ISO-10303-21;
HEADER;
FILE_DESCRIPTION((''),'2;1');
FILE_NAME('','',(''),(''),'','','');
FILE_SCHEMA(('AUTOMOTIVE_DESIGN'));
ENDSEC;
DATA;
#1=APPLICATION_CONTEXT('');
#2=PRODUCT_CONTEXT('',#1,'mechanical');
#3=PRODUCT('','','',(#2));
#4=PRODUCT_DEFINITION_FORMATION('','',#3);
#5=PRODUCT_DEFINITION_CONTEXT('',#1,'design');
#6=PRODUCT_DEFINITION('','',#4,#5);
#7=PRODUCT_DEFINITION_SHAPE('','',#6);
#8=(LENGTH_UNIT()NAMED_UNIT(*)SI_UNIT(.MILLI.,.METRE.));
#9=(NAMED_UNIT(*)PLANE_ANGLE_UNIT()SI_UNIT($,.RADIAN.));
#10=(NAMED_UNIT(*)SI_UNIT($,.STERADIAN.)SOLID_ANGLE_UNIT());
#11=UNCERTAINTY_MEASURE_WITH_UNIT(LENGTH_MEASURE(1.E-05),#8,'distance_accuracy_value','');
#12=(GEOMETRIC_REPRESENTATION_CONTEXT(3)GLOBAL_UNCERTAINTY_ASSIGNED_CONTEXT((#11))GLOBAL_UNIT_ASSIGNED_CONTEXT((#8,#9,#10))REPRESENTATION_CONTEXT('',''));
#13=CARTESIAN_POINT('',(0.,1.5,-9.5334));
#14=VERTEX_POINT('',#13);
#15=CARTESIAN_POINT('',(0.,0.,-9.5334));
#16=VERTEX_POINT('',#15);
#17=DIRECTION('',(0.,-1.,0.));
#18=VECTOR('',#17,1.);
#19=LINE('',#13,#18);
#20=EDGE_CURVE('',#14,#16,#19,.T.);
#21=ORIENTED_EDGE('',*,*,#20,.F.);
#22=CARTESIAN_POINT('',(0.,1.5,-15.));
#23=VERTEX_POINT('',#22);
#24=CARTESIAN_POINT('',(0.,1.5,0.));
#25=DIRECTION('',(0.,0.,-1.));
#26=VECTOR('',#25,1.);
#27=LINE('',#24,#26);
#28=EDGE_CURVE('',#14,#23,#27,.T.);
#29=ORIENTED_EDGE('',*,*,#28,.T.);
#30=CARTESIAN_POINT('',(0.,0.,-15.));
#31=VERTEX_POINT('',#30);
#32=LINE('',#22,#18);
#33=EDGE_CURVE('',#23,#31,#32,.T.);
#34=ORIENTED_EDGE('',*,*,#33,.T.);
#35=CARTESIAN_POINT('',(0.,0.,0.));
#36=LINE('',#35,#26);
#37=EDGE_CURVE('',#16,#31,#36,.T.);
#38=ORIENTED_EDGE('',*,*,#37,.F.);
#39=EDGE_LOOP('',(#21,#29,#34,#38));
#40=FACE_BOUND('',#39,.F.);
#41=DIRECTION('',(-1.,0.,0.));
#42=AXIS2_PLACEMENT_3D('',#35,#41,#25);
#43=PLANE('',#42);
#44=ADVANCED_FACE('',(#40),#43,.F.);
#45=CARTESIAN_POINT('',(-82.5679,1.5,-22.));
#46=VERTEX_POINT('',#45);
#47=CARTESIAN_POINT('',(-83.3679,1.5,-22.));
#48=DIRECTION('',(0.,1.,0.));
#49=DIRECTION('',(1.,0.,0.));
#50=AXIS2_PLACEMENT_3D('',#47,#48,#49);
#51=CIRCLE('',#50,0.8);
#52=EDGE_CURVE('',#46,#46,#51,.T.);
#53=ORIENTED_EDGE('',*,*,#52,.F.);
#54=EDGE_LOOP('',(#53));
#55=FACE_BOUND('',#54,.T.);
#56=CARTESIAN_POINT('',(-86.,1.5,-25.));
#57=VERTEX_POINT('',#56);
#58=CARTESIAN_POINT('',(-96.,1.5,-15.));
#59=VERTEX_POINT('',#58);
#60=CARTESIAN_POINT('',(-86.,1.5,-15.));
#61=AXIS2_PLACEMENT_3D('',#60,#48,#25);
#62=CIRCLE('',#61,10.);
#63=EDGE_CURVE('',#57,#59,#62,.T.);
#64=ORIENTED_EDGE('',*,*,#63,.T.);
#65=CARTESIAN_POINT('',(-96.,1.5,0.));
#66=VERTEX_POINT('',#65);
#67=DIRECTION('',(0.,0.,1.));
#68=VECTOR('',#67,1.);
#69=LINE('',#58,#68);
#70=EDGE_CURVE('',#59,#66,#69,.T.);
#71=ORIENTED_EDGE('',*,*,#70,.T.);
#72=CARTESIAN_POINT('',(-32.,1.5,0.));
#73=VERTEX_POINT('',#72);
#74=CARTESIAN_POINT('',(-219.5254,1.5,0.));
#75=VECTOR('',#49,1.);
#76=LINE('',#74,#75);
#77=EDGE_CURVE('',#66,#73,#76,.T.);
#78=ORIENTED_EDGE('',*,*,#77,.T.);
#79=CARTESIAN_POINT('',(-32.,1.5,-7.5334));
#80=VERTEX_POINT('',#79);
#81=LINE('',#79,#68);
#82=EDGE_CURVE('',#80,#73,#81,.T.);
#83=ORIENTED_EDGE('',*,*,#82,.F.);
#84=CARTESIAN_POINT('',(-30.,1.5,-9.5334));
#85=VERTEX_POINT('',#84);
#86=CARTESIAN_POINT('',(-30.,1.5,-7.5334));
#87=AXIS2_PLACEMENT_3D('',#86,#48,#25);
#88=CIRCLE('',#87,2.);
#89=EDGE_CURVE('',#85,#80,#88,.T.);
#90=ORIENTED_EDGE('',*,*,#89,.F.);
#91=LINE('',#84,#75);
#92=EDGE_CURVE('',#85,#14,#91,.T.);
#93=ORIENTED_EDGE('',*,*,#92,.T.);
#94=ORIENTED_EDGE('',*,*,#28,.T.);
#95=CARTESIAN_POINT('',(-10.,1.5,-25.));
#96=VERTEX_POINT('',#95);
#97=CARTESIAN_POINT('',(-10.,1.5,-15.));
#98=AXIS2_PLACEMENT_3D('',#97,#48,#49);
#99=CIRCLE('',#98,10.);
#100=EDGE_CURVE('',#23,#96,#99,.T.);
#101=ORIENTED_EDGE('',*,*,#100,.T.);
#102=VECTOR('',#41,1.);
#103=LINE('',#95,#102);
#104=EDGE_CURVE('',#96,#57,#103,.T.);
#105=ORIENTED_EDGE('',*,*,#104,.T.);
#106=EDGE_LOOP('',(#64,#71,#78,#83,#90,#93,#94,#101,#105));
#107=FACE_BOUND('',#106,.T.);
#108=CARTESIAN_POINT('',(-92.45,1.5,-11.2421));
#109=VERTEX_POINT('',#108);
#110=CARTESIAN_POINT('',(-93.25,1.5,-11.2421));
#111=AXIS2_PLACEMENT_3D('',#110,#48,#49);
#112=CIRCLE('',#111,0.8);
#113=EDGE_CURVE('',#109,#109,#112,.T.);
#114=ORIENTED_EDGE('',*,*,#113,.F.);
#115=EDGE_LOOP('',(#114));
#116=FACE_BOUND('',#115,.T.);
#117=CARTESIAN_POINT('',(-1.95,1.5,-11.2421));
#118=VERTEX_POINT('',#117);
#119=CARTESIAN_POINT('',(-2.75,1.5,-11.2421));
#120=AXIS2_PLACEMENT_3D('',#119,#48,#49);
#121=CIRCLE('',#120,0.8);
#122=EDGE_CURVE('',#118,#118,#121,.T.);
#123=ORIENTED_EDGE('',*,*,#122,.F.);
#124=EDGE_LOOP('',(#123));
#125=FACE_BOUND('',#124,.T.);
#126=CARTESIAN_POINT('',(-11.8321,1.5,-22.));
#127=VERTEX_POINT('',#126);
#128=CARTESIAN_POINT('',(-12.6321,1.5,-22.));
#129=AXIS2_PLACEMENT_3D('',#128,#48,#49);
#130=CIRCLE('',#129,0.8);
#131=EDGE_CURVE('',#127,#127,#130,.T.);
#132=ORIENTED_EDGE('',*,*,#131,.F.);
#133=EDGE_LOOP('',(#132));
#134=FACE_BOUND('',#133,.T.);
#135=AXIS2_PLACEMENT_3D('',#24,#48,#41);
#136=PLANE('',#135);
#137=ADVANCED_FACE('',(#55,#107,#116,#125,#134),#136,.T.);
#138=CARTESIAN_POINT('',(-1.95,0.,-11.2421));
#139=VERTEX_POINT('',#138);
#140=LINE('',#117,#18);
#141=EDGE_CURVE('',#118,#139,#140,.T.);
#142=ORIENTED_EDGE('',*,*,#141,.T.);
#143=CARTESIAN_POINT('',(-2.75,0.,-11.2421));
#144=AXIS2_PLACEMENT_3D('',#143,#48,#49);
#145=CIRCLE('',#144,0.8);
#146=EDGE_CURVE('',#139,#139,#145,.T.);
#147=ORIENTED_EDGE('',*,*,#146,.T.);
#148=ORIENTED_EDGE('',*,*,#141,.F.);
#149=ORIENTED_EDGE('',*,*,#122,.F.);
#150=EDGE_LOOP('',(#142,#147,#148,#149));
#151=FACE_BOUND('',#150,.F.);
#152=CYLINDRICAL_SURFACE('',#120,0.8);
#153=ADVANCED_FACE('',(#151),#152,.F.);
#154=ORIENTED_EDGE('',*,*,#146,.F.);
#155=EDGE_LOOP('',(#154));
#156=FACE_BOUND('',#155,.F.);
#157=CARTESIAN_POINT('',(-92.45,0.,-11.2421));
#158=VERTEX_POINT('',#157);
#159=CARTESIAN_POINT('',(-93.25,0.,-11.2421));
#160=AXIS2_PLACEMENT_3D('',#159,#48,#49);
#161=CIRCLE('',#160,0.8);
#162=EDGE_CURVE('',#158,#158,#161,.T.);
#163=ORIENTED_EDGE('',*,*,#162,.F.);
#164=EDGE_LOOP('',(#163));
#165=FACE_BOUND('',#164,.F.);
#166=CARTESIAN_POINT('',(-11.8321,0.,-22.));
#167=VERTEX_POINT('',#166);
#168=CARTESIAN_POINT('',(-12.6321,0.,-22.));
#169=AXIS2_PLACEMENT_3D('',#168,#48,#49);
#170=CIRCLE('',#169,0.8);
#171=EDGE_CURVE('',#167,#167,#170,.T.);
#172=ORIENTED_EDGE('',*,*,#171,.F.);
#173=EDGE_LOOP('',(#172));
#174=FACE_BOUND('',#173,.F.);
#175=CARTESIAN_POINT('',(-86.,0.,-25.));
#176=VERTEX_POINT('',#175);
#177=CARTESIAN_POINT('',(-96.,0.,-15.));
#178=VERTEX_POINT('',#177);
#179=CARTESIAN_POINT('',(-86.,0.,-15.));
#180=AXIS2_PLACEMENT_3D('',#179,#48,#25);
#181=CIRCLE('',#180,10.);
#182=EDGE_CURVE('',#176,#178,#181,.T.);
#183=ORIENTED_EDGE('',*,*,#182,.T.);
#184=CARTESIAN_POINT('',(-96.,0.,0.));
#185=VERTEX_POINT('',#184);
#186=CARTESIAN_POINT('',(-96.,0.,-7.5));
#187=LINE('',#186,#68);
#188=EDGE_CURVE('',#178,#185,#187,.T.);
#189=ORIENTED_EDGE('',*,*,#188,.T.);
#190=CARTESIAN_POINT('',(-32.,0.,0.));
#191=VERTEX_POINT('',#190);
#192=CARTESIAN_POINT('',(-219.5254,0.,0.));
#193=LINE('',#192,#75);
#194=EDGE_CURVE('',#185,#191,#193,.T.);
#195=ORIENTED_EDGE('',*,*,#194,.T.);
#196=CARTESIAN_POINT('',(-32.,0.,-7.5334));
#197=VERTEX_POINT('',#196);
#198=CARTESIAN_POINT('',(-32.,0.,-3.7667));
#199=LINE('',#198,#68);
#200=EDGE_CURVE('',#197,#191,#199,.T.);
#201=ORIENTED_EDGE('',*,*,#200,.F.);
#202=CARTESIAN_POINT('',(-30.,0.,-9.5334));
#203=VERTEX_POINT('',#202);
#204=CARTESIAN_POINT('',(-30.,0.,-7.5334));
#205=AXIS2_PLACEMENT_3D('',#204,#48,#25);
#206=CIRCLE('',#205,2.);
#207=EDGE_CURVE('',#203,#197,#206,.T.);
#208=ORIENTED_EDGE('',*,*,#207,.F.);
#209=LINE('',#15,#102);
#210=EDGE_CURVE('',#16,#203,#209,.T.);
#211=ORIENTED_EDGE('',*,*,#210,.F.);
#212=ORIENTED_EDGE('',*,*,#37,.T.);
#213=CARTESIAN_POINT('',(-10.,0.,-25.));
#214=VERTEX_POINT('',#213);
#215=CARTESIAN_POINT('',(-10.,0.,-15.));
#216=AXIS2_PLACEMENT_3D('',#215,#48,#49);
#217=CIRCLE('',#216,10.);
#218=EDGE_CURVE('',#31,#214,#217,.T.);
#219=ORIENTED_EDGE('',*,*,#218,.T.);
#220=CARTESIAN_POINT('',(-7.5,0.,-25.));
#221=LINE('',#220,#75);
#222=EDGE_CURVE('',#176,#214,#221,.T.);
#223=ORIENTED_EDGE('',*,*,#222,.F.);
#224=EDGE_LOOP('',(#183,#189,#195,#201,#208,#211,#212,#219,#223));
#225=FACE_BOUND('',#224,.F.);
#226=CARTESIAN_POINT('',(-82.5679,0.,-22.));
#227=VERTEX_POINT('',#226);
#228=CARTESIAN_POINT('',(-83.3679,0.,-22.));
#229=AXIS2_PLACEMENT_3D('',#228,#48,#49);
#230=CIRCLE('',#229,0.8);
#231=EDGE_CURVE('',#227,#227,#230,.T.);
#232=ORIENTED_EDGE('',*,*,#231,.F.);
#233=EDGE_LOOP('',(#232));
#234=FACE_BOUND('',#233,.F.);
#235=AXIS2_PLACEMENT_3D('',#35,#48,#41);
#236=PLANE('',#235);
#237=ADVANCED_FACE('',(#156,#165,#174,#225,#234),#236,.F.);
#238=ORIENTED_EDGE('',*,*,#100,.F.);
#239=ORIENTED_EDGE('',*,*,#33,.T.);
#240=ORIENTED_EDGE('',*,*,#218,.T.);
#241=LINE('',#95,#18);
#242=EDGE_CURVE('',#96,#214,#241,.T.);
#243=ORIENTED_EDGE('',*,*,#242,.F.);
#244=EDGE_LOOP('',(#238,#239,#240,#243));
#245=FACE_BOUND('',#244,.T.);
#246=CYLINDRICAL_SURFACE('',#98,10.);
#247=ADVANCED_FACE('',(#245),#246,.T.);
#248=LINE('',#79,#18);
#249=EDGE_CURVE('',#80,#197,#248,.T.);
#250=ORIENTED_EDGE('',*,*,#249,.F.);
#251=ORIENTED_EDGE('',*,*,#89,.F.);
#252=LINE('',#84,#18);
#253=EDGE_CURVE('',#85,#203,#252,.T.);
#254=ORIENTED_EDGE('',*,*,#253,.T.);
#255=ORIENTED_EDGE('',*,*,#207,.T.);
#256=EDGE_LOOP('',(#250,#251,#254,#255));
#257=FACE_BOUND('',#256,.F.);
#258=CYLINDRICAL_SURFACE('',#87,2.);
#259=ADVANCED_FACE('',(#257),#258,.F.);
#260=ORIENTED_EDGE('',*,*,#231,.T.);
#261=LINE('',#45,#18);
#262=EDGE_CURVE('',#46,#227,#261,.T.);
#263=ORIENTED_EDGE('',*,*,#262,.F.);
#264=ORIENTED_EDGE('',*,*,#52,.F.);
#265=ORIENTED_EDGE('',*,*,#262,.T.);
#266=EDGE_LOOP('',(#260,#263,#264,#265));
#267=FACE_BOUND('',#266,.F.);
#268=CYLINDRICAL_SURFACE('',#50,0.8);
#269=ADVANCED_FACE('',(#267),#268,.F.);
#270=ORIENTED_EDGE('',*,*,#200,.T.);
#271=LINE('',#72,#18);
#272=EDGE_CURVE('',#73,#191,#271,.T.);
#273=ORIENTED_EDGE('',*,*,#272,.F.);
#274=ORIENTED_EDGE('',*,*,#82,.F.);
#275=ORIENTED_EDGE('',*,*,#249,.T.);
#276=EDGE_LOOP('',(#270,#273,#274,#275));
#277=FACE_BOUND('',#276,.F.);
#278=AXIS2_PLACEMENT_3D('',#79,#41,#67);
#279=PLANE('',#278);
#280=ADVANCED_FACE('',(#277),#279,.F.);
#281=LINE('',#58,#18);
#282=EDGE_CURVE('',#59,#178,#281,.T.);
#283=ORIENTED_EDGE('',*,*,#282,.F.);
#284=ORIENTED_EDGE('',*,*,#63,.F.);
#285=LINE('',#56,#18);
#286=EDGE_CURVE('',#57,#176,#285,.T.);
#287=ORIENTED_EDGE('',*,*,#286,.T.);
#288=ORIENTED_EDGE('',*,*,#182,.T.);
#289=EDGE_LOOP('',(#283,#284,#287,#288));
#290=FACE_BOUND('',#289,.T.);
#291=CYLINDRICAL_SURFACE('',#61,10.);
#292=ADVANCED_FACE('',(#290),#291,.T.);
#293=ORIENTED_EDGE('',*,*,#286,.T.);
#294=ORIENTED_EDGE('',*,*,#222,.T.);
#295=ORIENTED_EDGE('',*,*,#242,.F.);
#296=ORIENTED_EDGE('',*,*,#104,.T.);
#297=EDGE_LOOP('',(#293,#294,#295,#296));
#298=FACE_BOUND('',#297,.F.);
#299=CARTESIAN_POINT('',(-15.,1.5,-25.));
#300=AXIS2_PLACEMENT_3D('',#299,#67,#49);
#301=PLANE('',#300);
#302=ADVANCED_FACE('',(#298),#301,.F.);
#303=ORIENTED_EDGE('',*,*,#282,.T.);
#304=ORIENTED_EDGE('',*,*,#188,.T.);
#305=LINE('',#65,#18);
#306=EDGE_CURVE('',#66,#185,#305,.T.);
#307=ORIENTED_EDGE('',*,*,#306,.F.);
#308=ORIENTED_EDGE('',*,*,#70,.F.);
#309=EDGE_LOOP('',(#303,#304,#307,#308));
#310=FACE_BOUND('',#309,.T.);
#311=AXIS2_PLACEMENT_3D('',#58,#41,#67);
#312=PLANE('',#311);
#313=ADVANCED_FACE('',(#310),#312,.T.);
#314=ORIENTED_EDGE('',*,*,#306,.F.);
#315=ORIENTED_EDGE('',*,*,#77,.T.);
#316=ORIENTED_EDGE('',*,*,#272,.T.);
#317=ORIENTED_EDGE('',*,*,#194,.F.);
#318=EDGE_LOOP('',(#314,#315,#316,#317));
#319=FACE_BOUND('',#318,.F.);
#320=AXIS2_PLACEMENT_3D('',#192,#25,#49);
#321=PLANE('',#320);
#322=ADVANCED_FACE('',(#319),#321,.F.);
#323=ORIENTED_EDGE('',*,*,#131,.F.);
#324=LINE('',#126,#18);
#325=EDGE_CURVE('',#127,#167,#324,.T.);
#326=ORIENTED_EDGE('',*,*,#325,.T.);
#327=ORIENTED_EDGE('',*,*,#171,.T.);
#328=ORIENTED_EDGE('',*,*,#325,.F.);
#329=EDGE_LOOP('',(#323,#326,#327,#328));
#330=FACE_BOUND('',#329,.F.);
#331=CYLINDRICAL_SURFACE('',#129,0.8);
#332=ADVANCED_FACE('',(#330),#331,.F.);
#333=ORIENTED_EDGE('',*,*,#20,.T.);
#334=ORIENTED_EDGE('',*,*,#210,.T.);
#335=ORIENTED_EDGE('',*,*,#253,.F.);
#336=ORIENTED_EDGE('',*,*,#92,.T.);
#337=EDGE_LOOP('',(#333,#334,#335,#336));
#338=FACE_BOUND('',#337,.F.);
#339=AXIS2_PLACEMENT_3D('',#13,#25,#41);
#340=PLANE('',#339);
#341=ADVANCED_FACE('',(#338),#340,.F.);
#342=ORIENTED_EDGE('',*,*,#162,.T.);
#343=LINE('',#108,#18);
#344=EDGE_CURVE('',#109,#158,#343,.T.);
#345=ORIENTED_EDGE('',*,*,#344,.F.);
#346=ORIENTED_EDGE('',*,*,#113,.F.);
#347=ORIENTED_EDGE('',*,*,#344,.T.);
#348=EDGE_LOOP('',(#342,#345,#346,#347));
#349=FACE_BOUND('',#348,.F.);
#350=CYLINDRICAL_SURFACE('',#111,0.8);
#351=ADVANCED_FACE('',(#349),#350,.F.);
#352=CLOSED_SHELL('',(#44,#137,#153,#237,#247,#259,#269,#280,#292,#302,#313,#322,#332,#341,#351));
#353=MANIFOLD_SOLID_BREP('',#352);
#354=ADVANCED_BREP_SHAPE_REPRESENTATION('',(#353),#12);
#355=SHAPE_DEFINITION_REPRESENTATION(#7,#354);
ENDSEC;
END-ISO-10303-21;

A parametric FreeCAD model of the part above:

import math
import FreeCAD as App
import Part
import Sketcher

V = App.Vector
Q = App.Units.Quantity

doc = App.newDocument("Part")
body = doc.addObject("PartDesign::Body", "Body")

# Sketch on XZ plane
sketch1 = body.newObject("Sketcher::SketchObject", "Sketch")
sketch1.AttachmentSupport = (doc.getObject("XZ_Plane"), [""])
sketch1.MapMode = "FlatFace"
sketch1.addGeometry([
    Part.LineSegment(V(-219.5254, -189.1417, 0), V(-219.5254, 0, 0)),
    Part.LineSegment(V(-219.5254, 0, 0), V(0, 0, 0)),
    Part.LineSegment(V(0, 0, 0), V(0, -189.1417, 0)),
    Part.LineSegment(V(0, -189.1417, 0), V(-219.5254, -189.1417, 0)),
], False)
sketch1.addConstraint([
    Sketcher.Constraint("Coincident", 0, 2, 1, 1),
    Sketcher.Constraint("Coincident", 1, 2, 2, 1),
    Sketcher.Constraint("Coincident", 2, 2, 3, 1),
    Sketcher.Constraint("Coincident", 3, 2, 0, 1),
    Sketcher.Constraint("Vertical", 0),
    Sketcher.Constraint("Horizontal", 1),
    Sketcher.Constraint("Vertical", 2),
    Sketcher.Constraint("Horizontal", 3),
    Sketcher.Constraint("Coincident", 1, 2, -1, 1),
    Sketcher.Constraint("DistanceX", 1, 1, 1, 2, Q("219.5254 mm")),
    Sketcher.Constraint("DistanceY", 0, 1, 0, 2, Q("189.1417 mm")),
])
pad1 = body.newObject("PartDesign::Pad", "Pad")
pad1.Profile = sketch1
pad1.Length = 1.5
pad1.Reversed = True

# Sketch on XZ plane
sketch2 = body.newObject("Sketcher::SketchObject", "Sketch001")
sketch2.AttachmentSupport = (doc.getObject("XZ_Plane"), [""])
sketch2.MapMode = "FlatFace"
sketch2.AttachmentOffset = App.Placement(V(0, 0, -1.5), App.Rotation())
sketch2.addGeometry([
    Part.LineSegment(V(0, -9.5334, 0), V(-30, -9.5334, 0)),  # 0
    Part.ArcOfCircle(Part.Circle(V(-30, -7.5334, 0), V(0, 0, 1), 2), math.radians(180), math.radians(270)),  # 1
    Part.LineSegment(V(-32, -7.5334, 0), V(-32, 0, 0)),  # 2
    Part.LineSegment(V(-32, 0, 0), V(0, 0, 0)),  # 3
    Part.LineSegment(V(0, 0, 0), V(0, -9.5334, 0)),  # 4
    Part.ArcOfCircle(Part.Circle(V(-10, -15, 0), V(0, 0, 1), 10), math.radians(-90), math.radians(0)),  # 5
    Part.LineSegment(V(0, -15, 0), V(0, -189.1417, 0)),  # 6
    Part.LineSegment(V(0, -189.1417, 0), V(-219.5254, -189.1417, 0)),  # 7
    Part.LineSegment(V(-219.5254, -189.1417, 0), V(-219.5254, 0, 0)),  # 8
    Part.LineSegment(V(-219.5254, 0, 0), V(-96, 0, 0)),  # 9
    Part.LineSegment(V(-96, 0, 0), V(-96, -15, 0)),  # 10
    Part.ArcOfCircle(Part.Circle(V(-86, -15, 0), V(0, 0, 1), 10), math.radians(180), math.radians(270)),  # 11
    Part.LineSegment(V(-86, -25, 0), V(-10, -25, 0)),  # 12
    Part.Circle(V(-12.6321, -22, 0), V(0, 0, 1), 0.8),  # 13
    Part.Circle(V(-83.3679, -22, 0), V(0, 0, 1), 0.8),  # 14
    Part.Circle(V(-93.25, -11.2421, 0), V(0, 0, 1), 0.8),  # 15
    Part.Circle(V(-2.75, -11.2421, 0), V(0, 0, 1), 0.8),  # 16
], False)
sketch2.addConstraint([
    Sketcher.Constraint("Tangent", 0, 2, 1, 2),
    Sketcher.Constraint("Tangent", 1, 1, 2, 1),
    Sketcher.Constraint("Coincident", 2, 2, 3, 1),
    Sketcher.Constraint("Coincident", 3, 2, 4, 1),
    Sketcher.Constraint("Coincident", 4, 2, 0, 1),
    Sketcher.Constraint("Tangent", 5, 2, 6, 1),
    Sketcher.Constraint("Coincident", 6, 2, 7, 1),
    Sketcher.Constraint("Coincident", 7, 2, 8, 1),
    Sketcher.Constraint("Coincident", 8, 2, 9, 1),
    Sketcher.Constraint("Coincident", 9, 2, 10, 1),
    Sketcher.Constraint("Tangent", 10, 2, 11, 1),
    Sketcher.Constraint("Tangent", 11, 2, 12, 1),
    Sketcher.Constraint("Tangent", 12, 2, 5, 1),
    Sketcher.Constraint("Horizontal", 0),
    Sketcher.Constraint("Vertical", 2),
    Sketcher.Constraint("Horizontal", 3),
    Sketcher.Constraint("Vertical", 4),
    Sketcher.Constraint("Vertical", 6),
    Sketcher.Constraint("Horizontal", 7),
    Sketcher.Constraint("Vertical", 8),
    Sketcher.Constraint("Horizontal", 9),
    Sketcher.Constraint("Vertical", 10),
    Sketcher.Constraint("Horizontal", 12),
    Sketcher.Constraint("Coincident", 3, 2, -1, 1),
    Sketcher.Constraint("Equal", 5, 11),
    Sketcher.Constraint("Equal", 13, 14),
    Sketcher.Constraint("Equal", 14, 15),
    Sketcher.Constraint("Equal", 15, 16),
    Sketcher.Constraint("PointOnObject", 5, 2, -2),
    Sketcher.Constraint("PointOnObject", 8, 2, -1),
    Sketcher.Constraint("Horizontal", 13, 3, 14, 3),
    Sketcher.Constraint("Horizontal", 15, 3, 16, 3),
    Sketcher.Constraint("Radius", 1, Q("2 mm")),
    Sketcher.Constraint("Diameter", 13, Q("1.6 mm")),
    Sketcher.Constraint("Radius", 5, Q("10 mm")),
    Sketcher.Constraint("DistanceX", 0, 2, 0, 1, Q("30 mm")),
    Sketcher.Constraint("DistanceX", 12, 1, 12, 2, Q("76 mm")),
    Sketcher.Constraint("DistanceY", 10, 2, 10, 1, Q("15 mm")),
    Sketcher.Constraint("DistanceY", 13, 3, -1, 1, Q("22 mm")),
    Sketcher.Constraint("DistanceX", 15, 3, -1, 1, Q("93.25 mm")),
    Sketcher.Constraint("DistanceX", 16, 3, -1, 1, Q("2.75 mm")),
    Sketcher.Constraint("DistanceX", 7, 2, 7, 1, Q("219.5254 mm")),
    Sketcher.Constraint("DistanceY", 2, 1, 2, 2, Q("7.5334 mm")),
    Sketcher.Constraint("DistanceY", 6, 2, 6, 1, Q("174.1417 mm")),
    Sketcher.Constraint("DistanceX", 13, 3, -1, 1, Q("12.632 mm")),
    Sketcher.Constraint("DistanceX", 14, 3, -1, 1, Q("83.368 mm")),
    Sketcher.Constraint("DistanceY", 15, 3, -1, 1, Q("11.242 mm")),
])
pocket1 = body.newObject("PartDesign::Pocket", "Pocket")
pocket1.Profile = sketch2
pocket1.Type = "ThroughAll"
pocket1.Reversed = True

doc.recompute()
